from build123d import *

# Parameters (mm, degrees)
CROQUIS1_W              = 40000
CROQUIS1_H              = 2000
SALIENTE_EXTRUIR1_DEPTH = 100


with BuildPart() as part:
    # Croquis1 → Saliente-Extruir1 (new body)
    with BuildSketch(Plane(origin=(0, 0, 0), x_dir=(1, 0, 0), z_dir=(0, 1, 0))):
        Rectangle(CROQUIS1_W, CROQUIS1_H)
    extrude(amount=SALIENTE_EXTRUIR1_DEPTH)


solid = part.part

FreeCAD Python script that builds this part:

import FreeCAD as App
import Part
import Sketcher
Q = App.Units.Quantity

doc = App.newDocument("Part")
body = doc.addObject("PartDesign::Body", "Body")

# Sketch on XZ plane
sketch1 = body.newObject("Sketcher::SketchObject", "Sketch")
sketch1.AttachmentSupport = (doc.getObject("XZ_Plane"), [""])
sketch1.MapMode = "FlatFace"
sketch1.addGeometry([
    Part.LineSegment(App.Vector(-20000, -1000, 0), App.Vector(-20000, 1000, 0)),
    Part.LineSegment(App.Vector(-20000, 1000, 0), App.Vector(20000, 1000, 0)),
    Part.LineSegment(App.Vector(20000, 1000, 0), App.Vector(20000, -1000, 0)),
    Part.LineSegment(App.Vector(20000, -1000, 0), App.Vector(-20000, -1000, 0)),
], False)
sketch1.addConstraint([
    Sketcher.Constraint("Coincident", 0, 2, 1, 1),
    Sketcher.Constraint("Coincident", 1, 2, 2, 1),
    Sketcher.Constraint("Coincident", 2, 2, 3, 1),
    Sketcher.Constraint("Coincident", 3, 2, 0, 1),
    Sketcher.Constraint("Vertical", 0),
    Sketcher.Constraint("Horizontal", 1),
    Sketcher.Constraint("Vertical", 2),
    Sketcher.Constraint("Horizontal", 3),
    Sketcher.Constraint("Symmetric", 0, 2, 2, 2, -1, 1),
    Sketcher.Constraint("DistanceX", 1, 1, 1, 2, Q("40000 mm")),
    Sketcher.Constraint("DistanceY", 0, 1, 0, 2, Q("2000 mm")),
])
pad1 = body.newObject("PartDesign::Pad", "Pad")
pad1.Profile = sketch1
pad1.Length = 100
pad1.Reversed = True

doc.recompute()
